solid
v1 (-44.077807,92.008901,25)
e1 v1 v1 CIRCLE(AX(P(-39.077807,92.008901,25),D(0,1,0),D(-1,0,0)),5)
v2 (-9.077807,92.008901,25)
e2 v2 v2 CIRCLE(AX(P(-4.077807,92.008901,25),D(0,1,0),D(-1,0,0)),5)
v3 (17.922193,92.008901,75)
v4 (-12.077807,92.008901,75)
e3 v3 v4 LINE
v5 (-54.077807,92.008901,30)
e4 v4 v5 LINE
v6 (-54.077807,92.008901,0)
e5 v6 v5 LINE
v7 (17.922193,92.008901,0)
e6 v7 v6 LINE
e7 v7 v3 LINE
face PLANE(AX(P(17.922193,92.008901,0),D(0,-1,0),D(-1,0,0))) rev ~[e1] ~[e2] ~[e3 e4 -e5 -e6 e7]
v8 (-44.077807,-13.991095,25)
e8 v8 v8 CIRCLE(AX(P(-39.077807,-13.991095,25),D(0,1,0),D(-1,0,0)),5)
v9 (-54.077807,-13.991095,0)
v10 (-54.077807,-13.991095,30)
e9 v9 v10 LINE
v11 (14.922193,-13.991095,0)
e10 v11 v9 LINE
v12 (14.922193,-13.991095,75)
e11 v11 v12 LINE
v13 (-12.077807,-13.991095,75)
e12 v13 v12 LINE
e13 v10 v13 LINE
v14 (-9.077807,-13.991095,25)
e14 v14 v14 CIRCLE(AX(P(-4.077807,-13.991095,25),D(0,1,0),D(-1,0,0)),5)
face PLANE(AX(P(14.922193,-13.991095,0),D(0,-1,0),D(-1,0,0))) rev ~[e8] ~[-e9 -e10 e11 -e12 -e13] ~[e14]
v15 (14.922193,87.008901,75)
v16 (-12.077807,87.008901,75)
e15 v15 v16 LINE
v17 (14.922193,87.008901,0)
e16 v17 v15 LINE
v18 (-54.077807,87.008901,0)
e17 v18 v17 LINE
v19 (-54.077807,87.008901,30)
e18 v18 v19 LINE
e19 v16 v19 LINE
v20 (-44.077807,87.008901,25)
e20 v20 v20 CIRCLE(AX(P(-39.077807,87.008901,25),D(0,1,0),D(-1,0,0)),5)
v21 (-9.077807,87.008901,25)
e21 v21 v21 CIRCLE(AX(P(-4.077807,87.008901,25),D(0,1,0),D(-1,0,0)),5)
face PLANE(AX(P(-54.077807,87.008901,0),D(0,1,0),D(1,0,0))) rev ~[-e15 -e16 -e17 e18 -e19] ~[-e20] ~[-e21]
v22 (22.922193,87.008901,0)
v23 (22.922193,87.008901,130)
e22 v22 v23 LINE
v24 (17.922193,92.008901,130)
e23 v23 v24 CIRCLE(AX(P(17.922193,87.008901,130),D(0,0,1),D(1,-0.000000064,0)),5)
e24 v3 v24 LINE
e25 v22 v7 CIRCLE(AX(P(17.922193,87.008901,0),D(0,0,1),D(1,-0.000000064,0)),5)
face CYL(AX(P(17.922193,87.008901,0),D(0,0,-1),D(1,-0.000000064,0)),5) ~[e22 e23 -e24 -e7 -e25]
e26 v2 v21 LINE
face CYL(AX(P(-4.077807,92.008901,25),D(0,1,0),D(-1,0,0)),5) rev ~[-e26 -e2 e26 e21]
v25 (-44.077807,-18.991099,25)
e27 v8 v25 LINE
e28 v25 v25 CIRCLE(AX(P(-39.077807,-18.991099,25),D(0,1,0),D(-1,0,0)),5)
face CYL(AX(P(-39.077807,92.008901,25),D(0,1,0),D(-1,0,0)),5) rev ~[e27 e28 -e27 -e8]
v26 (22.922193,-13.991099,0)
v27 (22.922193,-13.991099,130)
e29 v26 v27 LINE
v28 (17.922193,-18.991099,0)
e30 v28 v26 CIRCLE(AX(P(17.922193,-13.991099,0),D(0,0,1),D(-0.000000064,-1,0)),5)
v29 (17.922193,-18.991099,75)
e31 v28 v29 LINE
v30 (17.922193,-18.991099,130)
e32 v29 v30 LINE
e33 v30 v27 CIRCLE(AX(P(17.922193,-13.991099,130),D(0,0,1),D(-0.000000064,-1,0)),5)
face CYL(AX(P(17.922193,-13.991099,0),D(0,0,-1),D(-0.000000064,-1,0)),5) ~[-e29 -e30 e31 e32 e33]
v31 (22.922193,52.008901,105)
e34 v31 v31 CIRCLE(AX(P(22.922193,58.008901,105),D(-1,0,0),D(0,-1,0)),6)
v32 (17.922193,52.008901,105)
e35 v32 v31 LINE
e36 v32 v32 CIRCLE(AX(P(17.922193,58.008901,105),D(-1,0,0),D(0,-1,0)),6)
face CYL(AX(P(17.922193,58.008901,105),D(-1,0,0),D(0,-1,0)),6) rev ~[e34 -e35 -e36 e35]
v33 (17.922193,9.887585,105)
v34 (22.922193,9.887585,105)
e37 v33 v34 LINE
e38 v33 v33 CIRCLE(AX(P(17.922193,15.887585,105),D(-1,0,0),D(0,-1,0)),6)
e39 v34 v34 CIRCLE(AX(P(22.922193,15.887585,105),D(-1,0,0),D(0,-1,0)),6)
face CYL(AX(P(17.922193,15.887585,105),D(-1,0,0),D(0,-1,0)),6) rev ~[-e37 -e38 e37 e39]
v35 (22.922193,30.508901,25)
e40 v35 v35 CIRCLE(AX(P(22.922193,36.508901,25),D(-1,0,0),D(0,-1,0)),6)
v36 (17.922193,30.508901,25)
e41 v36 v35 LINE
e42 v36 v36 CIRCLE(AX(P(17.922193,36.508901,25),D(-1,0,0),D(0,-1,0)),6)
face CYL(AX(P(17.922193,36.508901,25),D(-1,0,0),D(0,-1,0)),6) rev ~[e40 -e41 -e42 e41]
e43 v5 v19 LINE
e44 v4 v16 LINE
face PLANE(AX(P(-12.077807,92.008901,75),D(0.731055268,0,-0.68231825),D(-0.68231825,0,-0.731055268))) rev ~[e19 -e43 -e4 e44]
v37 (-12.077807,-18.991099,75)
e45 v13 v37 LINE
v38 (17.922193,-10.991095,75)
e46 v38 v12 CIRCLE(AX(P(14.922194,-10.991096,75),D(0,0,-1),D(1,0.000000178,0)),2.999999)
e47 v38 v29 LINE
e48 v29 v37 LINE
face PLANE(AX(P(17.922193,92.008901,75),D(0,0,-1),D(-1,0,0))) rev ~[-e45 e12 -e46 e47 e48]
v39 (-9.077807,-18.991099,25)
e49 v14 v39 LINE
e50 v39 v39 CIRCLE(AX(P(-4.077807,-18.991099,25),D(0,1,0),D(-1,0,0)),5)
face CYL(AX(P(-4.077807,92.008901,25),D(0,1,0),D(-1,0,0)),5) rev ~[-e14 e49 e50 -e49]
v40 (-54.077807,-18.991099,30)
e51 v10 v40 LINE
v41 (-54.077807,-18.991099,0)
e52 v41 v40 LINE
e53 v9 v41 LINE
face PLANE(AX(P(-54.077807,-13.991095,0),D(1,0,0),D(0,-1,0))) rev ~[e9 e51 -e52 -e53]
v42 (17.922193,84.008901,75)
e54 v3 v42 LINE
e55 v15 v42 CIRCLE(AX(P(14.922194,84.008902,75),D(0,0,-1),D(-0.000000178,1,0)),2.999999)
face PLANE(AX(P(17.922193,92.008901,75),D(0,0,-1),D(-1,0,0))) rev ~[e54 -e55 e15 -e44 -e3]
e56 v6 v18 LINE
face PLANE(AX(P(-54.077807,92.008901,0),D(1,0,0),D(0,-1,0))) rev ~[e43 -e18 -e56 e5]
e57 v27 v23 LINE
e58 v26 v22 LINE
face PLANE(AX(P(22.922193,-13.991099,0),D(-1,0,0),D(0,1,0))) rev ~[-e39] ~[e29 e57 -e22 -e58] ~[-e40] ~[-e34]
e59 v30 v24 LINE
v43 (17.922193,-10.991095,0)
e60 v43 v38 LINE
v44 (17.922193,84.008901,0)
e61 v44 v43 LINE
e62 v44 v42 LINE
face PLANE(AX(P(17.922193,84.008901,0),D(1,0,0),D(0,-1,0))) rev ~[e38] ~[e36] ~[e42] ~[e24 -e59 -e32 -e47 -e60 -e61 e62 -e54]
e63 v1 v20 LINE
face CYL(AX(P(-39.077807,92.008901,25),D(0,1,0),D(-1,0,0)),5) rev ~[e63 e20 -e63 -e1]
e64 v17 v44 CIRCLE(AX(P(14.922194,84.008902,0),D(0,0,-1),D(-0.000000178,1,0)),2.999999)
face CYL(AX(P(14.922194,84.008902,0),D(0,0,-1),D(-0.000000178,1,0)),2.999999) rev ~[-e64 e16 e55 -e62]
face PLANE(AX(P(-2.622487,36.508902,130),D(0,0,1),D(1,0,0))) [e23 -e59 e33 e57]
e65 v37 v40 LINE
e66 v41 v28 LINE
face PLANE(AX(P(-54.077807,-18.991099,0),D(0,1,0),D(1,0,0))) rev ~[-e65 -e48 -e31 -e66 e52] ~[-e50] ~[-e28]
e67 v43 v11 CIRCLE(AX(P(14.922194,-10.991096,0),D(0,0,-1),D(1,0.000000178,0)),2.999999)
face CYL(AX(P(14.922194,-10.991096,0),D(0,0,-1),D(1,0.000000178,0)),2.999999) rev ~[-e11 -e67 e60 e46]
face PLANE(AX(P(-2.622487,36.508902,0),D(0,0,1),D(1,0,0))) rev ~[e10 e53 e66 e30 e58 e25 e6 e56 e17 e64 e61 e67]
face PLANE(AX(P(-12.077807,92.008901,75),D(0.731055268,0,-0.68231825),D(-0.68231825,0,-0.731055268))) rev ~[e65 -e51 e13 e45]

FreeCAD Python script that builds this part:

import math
import FreeCAD as App
import Part
import Sketcher
from FreeCAD import Vector
Q = App.Units.Quantity

doc = App.newDocument("Part")
body = doc.addObject("PartDesign::Body", "Body")

sketch1 = body.newObject("Sketcher::SketchObject", "Sketch")
sketch1.AttachmentSupport = (doc.getObject("XY_Plane"), [""])
sketch1.MapMode = "FlatFace"
sketch1.addGeometry(Part.LineSegment(Vector(17.9, 92, 0), Vector(-54.1, 92, 0)), False)
sketch1.addGeometry(Part.LineSegment(Vector(-54.1, 92, 0), Vector(-54.1, 87, 0)), False)
sketch1.addGeometry(Part.LineSegment(Vector(-54.1, 87, 0), Vector(14.9, 87, 0)), False)
sketch1.addGeometry(Part.ArcOfCircle(Part.Circle(Vector(14.9, 84, 0), Vector(0, 0, 1), 3), math.radians(0), math.radians(90)), False)
sketch1.addGeometry(Part.LineSegment(Vector(17.9, 84, 0), Vector(17.9, -11, 0)), False)
sketch1.addGeometry(Part.ArcOfCircle(Part.Circle(Vector(14.9, -11, 0), Vector(0, 0, 1), 3), math.radians(-90), math.radians(0)), False)
sketch1.addGeometry(Part.LineSegment(Vector(14.9, -14, 0), Vector(-54.1, -14, 0)), False)
sketch1.addGeometry(Part.LineSegment(Vector(-54.1, -14, 0), Vector(-54.1, -19, 0)), False)
sketch1.addGeometry(Part.LineSegment(Vector(-54.1, -19, 0), Vector(17.9, -19, 0)), False)
sketch1.addGeometry(Part.ArcOfCircle(Part.Circle(Vector(17.9, -14, 0), Vector(0, 0, 1), 5), math.radians(-90), math.radians(0)), False)
sketch1.addGeometry(Part.LineSegment(Vector(22.9, -14, 0), Vector(22.9, 87, 0)), False)
sketch1.addGeometry(Part.ArcOfCircle(Part.Circle(Vector(17.9, 87, 0), Vector(0, 0, 1), 5), math.radians(0), math.radians(90)), False)
sketch1.addConstraint(Sketcher.Constraint("Coincident", 0, 2, 1, 1))
sketch1.addConstraint(Sketcher.Constraint("Coincident", 1, 2, 2, 1))
sketch1.addConstraint(Sketcher.Constraint("Tangent", 2, 2, 3, 2))
sketch1.addConstraint(Sketcher.Constraint("Tangent", 3, 1, 4, 1))
sketch1.addConstraint(Sketcher.Constraint("Tangent", 4, 2, 5, 2))
sketch1.addConstraint(Sketcher.Constraint("Tangent", 5, 1, 6, 1))
sketch1.addConstraint(Sketcher.Constraint("Coincident", 6, 2, 7, 1))
sketch1.addConstraint(Sketcher.Constraint("Coincident", 7, 2, 8, 1))
sketch1.addConstraint(Sketcher.Constraint("Tangent", 8, 2, 9, 1))
sketch1.addConstraint(Sketcher.Constraint("Tangent", 9, 2, 10, 1))
sketch1.addConstraint(Sketcher.Constraint("Tangent", 10, 2, 11, 1))
sketch1.addConstraint(Sketcher.Constraint("Tangent", 11, 2, 0, 1))
sketch1.addConstraint(Sketcher.Constraint("Horizontal", 0))
sketch1.addConstraint(Sketcher.Constraint("Vertical", 1))
sketch1.addConstraint(Sketcher.Constraint("Horizontal", 2))
sketch1.addConstraint(Sketcher.Constraint("Vertical", 4))
sketch1.addConstraint(Sketcher.Constraint("Horizontal", 6))
sketch1.addConstraint(Sketcher.Constraint("Vertical", 7))
sketch1.addConstraint(Sketcher.Constraint("Horizontal", 8))
sketch1.addConstraint(Sketcher.Constraint("Vertical", 10))
sketch1.addConstraint(Sketcher.Constraint("Equal", 3, 5))
sketch1.addConstraint(Sketcher.Constraint("Equal", 9, 11))
sketch1.addConstraint(Sketcher.Constraint("Horizontal", 11, 3, 1, 2))
sketch1.addConstraint(Sketcher.Constraint("Vertical", 11, 3, 3, 1))
sketch1.addConstraint(Sketcher.Constraint("Vertical", 1, 2, 6, 2))
sketch1.addConstraint(Sketcher.Constraint("Radius", 3, Q("2.999999 mm")))
sketch1.addConstraint(Sketcher.Constraint("Radius", 9, Q("5 mm")))
sketch1.addConstraint(Sketcher.Constraint("DistanceX", 0, 2, 0, 1, Q("72 mm")))
sketch1.addConstraint(Sketcher.Constraint("DistanceY", 10, 1, 10, 2, Q("101 mm")))
sketch1.addConstraint(Sketcher.Constraint("DistanceY", -1, 1, 3, 3, Q("84.008902 mm")))
sketch1.addConstraint(Sketcher.Constraint("DistanceY", 4, 2, 4, 1, Q("94.999996 mm")))
sketch1.addConstraint(Sketcher.Constraint("DistanceX", -1, 1, 3, 3, Q("14.922194 mm")))
pad1 = body.newObject("PartDesign::Pad", "Pad")
pad1.Profile = sketch1
pad1.Length = 130

sketch2 = body.newObject("Sketcher::SketchObject", "Sketch001")
sketch2.AttachmentSupport = (doc.getObject("YZ_Plane"), [""])
sketch2.MapMode = "FlatFace"
sketch2.AttachmentOffset = App.Placement(Vector(0, 0, 17.922193), App.Rotation())
sketch2.addGeometry(Part.Circle(Vector(16, 105, 0), Vector(0, 0, 1), 6), False)
sketch2.addGeometry(Part.Circle(Vector(37, 25, 0), Vector(0, 0, 1), 6), False)
sketch2.addGeometry(Part.Circle(Vector(58, 105, 0), Vector(0, 0, 1), 6), False)
sketch2.addConstraint(Sketcher.Constraint("Equal", 0, 1))
sketch2.addConstraint(Sketcher.Constraint("Equal", 1, 2))
sketch2.addConstraint(Sketcher.Constraint("Horizontal", 0, 3, 2, 3))
sketch2.addConstraint(Sketcher.Constraint("Diameter", 0, Q("12 mm")))
sketch2.addConstraint(Sketcher.Constraint("DistanceY", -1, 1, 0, 3, Q("105 mm")))
sketch2.addConstraint(Sketcher.Constraint("DistanceY", -1, 1, 1, 3, Q("25 mm")))
sketch2.addConstraint(Sketcher.Constraint("DistanceX", 1, 3, 2, 3, Q("21.5 mm")))
sketch2.addConstraint(Sketcher.Constraint("DistanceX", -1, 1, 1, 3, Q("36.508901 mm")))
sketch2.addConstraint(Sketcher.Constraint("DistanceX", -1, 1, 0, 3, Q("15.887585 mm")))
pocket1 = body.newObject("PartDesign::Pocket", "Pocket")
pocket1.Profile = sketch2
pocket1.Type = "ThroughAll"
pocket1.Reversed = True

sketch3 = body.newObject("Sketcher::SketchObject", "Sketch002")
sketch3.AttachmentSupport = (doc.getObject("XZ_Plane"), [""])
sketch3.MapMode = "FlatFace"
sketch3.AttachmentOffset = App.Placement(Vector(0, 0, -92.008901), App.Rotation())
sketch3.addGeometry(Part.Circle(Vector(-39, 25, 0), Vector(0, 0, 1), 5), False)
sketch3.addGeometry(Part.Circle(Vector(-4, 25, 0), Vector(0, 0, 1), 5), False)
sketch3.addGeometry(Part.LineSegment(Vector(-12, 75, 0), Vector(-54, 30, 0)), False)
sketch3.addGeometry(Part.LineSegment(Vector(-54, 30, 0), Vector(-54, 130, 0)), False)
sketch3.addGeometry(Part.LineSegment(Vector(-54, 130, 0), Vector(18, 130, 0)), False)
sketch3.addGeometry(Part.LineSegment(Vector(18, 130, 0), Vector(18, 75, 0)), False)
sketch3.addGeometry(Part.LineSegment(Vector(18, 75, 0), Vector(-12, 75, 0)), False)
sketch3.addConstraint(Sketcher.Constraint("Coincident", 2, 2, 3, 1))
sketch3.addConstraint(Sketcher.Constraint("Coincident", 3, 2, 4, 1))
sketch3.addConstraint(Sketcher.Constraint("Coincident", 4, 2, 5, 1))
sketch3.addConstraint(Sketcher.Constraint("Coincident", 5, 2, 6, 1))
sketch3.addConstraint(Sketcher.Constraint("Coincident", 6, 2, 2, 1))
sketch3.addConstraint(Sketcher.Constraint("Vertical", 3))
sketch3.addConstraint(Sketcher.Constraint("Horizontal", 4))
sketch3.addConstraint(Sketcher.Constraint("Vertical", 5))
sketch3.addConstraint(Sketcher.Constraint("Horizontal", 6))
sketch3.addConstraint(Sketcher.Constraint("Equal", 0, 1))
sketch3.addConstraint(Sketcher.Constraint("Horizontal", 0, 3, 1, 3))
sketch3.addConstraint(Sketcher.Constraint("Diameter", 0, Q("10 mm")))
sketch3.addConstraint(Sketcher.Constraint("DistanceX", 4, 1, 4, 2, Q("72 mm")))
sketch3.addConstraint(Sketcher.Constraint("DistanceX", 6, 2, 6, 1, Q("30 mm")))
sketch3.addConstraint(Sketcher.Constraint("DistanceY", 3, 1, 3, 2, Q("100 mm")))
sketch3.addConstraint(Sketcher.Constraint("DistanceY", 5, 2, 5, 1, Q("55 mm")))
sketch3.addConstraint(Sketcher.Constraint("DistanceY", -1, 1, 0, 3, Q("25 mm")))
sketch3.addConstraint(Sketcher.Constraint("DistanceY", -1, 1, 2, 2, Q("30 mm")))
sketch3.addConstraint(Sketcher.Constraint("DistanceX", 0, 3, 1, 3, Q("35 mm")))
sketch3.addConstraint(Sketcher.Constraint("DistanceX", 2, 2, 0, 3, Q("15 mm")))
sketch3.addConstraint(Sketcher.Constraint("DistanceX", 0, 3, -1, 1, Q("39.077807 mm")))
pocket2 = body.newObject("PartDesign::Pocket", "Pocket001")
pocket2.Profile = sketch3
pocket2.Type = "ThroughAll"
pocket2.Reversed = True

doc.recompute()
